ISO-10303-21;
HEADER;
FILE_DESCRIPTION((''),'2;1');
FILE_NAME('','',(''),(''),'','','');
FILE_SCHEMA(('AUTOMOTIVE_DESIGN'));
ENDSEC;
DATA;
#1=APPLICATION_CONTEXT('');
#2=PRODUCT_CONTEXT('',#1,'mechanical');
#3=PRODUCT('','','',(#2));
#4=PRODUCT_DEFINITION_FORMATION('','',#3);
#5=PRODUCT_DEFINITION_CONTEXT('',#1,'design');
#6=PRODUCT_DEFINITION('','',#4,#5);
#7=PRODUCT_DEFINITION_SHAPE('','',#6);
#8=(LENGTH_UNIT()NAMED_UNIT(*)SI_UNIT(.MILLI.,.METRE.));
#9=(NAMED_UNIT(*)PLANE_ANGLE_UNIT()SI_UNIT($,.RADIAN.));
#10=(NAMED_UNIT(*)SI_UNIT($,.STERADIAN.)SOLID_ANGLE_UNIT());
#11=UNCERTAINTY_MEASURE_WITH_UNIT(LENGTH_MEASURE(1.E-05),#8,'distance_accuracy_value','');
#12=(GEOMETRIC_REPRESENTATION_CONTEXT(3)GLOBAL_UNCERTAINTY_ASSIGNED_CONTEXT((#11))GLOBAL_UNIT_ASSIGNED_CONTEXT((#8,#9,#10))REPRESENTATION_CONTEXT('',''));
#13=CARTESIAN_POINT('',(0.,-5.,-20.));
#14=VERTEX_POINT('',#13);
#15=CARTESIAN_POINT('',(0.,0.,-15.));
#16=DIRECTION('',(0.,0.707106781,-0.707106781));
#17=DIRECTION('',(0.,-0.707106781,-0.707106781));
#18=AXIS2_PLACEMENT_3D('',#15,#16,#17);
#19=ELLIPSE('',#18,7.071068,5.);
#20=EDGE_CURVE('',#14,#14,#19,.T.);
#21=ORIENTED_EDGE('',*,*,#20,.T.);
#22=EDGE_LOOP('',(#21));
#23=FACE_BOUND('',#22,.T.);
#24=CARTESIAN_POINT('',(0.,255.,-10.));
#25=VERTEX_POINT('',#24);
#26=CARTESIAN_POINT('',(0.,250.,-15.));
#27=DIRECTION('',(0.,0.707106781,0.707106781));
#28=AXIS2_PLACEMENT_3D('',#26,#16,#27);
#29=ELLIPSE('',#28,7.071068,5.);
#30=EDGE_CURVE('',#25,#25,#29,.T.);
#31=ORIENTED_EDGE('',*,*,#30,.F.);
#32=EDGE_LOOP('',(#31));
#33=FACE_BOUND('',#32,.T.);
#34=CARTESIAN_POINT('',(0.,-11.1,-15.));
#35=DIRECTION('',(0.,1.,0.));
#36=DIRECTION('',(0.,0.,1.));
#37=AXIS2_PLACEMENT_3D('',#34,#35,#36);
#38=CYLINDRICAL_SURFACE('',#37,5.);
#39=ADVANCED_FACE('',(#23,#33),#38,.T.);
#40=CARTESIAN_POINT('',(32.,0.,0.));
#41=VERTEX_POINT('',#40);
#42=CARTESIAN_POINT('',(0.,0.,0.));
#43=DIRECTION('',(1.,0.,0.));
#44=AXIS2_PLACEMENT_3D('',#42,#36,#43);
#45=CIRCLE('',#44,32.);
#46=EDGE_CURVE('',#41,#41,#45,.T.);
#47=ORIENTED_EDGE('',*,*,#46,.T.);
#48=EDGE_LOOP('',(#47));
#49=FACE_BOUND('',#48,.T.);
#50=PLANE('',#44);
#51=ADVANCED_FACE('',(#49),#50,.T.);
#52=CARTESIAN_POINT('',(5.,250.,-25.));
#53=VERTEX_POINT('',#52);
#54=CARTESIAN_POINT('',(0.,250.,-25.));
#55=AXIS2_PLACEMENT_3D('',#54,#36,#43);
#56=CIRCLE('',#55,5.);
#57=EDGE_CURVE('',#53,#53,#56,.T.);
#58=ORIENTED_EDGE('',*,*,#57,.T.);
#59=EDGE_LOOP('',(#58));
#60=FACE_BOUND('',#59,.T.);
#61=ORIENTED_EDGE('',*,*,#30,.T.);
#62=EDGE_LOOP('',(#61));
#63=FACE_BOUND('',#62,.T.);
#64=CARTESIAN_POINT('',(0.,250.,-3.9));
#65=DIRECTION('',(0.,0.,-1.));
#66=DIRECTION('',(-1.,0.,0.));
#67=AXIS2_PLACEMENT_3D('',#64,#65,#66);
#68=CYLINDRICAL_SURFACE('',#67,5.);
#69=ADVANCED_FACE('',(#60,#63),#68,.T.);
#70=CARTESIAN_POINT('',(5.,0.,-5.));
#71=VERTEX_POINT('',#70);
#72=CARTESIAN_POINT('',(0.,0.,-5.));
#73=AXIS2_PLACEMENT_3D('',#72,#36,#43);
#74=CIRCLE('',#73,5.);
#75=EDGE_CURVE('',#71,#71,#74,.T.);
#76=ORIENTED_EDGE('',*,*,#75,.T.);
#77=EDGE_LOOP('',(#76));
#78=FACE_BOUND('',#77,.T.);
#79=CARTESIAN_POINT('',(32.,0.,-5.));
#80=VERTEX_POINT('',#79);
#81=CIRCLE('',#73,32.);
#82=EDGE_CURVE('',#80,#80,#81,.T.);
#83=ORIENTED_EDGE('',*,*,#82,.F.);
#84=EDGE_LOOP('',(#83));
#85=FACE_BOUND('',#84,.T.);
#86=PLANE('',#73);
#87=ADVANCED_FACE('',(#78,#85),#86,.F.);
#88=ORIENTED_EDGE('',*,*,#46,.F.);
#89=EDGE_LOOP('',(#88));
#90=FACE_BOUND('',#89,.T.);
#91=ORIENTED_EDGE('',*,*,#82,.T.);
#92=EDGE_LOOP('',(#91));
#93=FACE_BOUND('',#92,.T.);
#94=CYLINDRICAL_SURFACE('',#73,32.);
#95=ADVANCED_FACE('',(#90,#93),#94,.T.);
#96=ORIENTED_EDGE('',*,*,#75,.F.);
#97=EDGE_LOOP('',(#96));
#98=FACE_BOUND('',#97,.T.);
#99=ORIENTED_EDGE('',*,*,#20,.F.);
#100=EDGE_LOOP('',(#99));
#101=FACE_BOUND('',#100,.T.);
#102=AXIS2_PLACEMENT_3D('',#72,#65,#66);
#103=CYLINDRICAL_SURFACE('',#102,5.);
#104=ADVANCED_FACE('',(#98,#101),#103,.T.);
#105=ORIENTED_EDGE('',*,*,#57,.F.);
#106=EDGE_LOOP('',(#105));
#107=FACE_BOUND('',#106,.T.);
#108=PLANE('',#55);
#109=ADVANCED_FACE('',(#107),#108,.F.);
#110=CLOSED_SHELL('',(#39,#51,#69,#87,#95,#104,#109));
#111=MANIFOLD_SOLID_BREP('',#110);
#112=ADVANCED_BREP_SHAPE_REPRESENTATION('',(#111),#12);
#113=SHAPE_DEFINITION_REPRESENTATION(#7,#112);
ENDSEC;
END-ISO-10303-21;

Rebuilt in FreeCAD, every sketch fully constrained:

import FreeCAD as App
import Part
import Sketcher
Q = App.Units.Quantity

doc = App.newDocument("Part")
body = doc.addObject("PartDesign::Body", "Body")

# Sketch on XY plane
sketch1 = doc.addObject("Sketcher::SketchObject", "Sketch")
body.addObject(sketch1)
sketch1.AttachmentSupport = (doc.XY_Plane, [""])
sketch1.MapMode = "FlatFace"
sketch1.addGeometry(Part.Circle(App.Vector(0, 0, 0), App.Vector(0, 0, 1), 32), False)
sketch1.addConstraint(Sketcher.Constraint("Coincident", 0, 3, -1, 1))
sketch1.addConstraint(Sketcher.Constraint("Diameter", 0, Q("64 mm")))
pad1 = doc.addObject("PartDesign::Pad", "Pad")
body.addObject(pad1)
pad1.Profile = sketch1
pad1.Length = 5
pad1.Reversed = True

# Sketch on XY plane
sketch2 = doc.addObject("Sketcher::SketchObject", "Sketch001")
body.addObject(sketch2)
sketch2.AttachmentSupport = (doc.XY_Plane, [""])
sketch2.MapMode = "FlatFace"
sketch2.AttachmentOffset = App.Placement(App.Vector(0, 0, -5), App.Rotation())
sketch2.addGeometry(Part.Circle(App.Vector(0, 0, 0), App.Vector(0, 0, 1), 5), False)
sketch2.addConstraint(Sketcher.Constraint("Coincident", 0, 3, -1, 1))
sketch2.addConstraint(Sketcher.Constraint("Diameter", 0, Q("10 mm")))

# Sketch on YZ plane
sketch3 = doc.addObject("Sketcher::SketchObject", "Sketch002")
body.addObject(sketch3)
sketch3.AttachmentSupport = (doc.YZ_Plane, [""])
sketch3.MapMode = "FlatFace"
sketch3.addGeometry(Part.LineSegment(App.Vector(0, -5, 0), App.Vector(0, -15, 0)), False)
sketch3.addGeometry(Part.LineSegment(App.Vector(0, -15, 0), App.Vector(250, -15, 0)), False)
sketch3.addGeometry(Part.LineSegment(App.Vector(250, -15, 0), App.Vector(250, -25, 0)), False)
sketch3.addConstraint(Sketcher.Constraint("Coincident", 0, 2, 1, 1))
sketch3.addConstraint(Sketcher.Constraint("Coincident", 1, 2, 2, 1))
sketch3.addConstraint(Sketcher.Constraint("Vertical", 0))
sketch3.addConstraint(Sketcher.Constraint("Horizontal", 1))
sketch3.addConstraint(Sketcher.Constraint("Vertical", 2))
sketch3.addConstraint(Sketcher.Constraint("PointOnObject", 0, 1, -2))
sketch3.addConstraint(Sketcher.Constraint("Equal", 0, 2))
sketch3.addConstraint(Sketcher.Constraint("DistanceX", 1, 1, 1, 2, Q("250 mm")))
sketch3.addConstraint(Sketcher.Constraint("DistanceY", 0, 2, 0, 1, Q("10 mm")))
sketch3.addConstraint(Sketcher.Constraint("DistanceY", 0, 1, -1, 1, Q("5 mm")))
doc.recompute()

additivepipe = doc.addObject("PartDesign::AdditivePipe", "AdditivePipe")
body.addObject(additivepipe)
additivepipe.Profile = sketch2
additivepipe.Spine = (sketch3, ["Edge1", "Edge2", "Edge3"])
additivepipe.Transition = "Right corner"

doc.recompute()
